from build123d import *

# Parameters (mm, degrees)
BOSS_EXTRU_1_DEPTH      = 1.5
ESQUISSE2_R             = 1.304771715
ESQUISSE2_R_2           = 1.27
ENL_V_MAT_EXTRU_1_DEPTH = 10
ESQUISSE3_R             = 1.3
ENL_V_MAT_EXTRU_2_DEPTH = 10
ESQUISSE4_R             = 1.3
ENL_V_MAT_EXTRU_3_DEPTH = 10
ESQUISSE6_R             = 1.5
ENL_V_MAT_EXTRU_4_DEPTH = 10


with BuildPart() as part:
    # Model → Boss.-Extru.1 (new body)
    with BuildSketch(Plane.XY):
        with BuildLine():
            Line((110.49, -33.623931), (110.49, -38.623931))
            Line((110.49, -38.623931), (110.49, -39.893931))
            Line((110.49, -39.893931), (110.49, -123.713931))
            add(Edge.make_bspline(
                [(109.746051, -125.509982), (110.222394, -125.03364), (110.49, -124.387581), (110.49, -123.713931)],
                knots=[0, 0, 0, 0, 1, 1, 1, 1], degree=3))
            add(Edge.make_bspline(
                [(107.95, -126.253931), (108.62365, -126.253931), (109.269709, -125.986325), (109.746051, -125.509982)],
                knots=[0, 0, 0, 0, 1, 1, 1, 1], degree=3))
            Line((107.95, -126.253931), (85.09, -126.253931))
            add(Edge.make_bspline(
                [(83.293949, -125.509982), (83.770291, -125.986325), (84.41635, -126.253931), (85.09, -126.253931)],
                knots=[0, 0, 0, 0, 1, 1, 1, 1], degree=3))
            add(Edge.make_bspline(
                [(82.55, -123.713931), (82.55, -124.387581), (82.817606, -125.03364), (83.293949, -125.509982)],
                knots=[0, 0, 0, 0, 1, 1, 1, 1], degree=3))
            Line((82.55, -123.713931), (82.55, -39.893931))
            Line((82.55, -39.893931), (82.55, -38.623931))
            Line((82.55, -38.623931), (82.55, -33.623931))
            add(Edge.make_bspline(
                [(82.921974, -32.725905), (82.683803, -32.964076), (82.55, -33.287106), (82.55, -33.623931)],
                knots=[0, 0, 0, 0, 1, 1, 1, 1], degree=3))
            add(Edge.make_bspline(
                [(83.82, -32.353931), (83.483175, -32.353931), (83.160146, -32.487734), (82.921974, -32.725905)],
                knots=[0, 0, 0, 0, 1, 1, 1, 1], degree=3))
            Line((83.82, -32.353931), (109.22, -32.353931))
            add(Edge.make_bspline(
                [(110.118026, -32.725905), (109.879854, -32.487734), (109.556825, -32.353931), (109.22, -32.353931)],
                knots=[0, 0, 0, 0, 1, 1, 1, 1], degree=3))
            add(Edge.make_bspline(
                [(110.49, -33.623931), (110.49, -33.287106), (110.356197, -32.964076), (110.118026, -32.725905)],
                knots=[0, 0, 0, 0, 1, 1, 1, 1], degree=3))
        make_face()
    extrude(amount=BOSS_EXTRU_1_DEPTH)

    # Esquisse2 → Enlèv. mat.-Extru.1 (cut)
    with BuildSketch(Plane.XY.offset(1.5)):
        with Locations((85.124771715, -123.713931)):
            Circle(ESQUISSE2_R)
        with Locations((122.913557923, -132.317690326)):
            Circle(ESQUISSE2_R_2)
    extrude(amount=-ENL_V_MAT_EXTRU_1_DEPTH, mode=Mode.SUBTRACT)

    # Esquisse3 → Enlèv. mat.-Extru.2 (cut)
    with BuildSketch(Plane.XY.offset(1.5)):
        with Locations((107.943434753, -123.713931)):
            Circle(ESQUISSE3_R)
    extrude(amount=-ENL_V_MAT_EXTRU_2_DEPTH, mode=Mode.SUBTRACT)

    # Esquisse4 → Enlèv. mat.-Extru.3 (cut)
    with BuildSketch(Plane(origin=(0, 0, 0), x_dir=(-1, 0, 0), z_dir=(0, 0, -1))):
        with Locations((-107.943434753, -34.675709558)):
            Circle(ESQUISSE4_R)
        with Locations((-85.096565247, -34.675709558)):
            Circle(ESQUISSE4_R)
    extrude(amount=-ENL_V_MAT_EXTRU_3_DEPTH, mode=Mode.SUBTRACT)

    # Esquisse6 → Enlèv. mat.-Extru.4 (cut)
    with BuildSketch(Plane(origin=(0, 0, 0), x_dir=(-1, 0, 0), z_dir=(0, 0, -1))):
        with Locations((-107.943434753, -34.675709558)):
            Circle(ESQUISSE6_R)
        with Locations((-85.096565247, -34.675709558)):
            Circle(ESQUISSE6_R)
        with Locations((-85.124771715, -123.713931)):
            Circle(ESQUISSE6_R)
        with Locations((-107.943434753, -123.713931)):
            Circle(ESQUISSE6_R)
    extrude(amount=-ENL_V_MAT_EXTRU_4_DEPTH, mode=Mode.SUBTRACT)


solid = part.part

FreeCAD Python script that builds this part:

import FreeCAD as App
import Part
import Sketcher
from FreeCAD import Vector

doc = App.newDocument("Part")
body = doc.addObject("PartDesign::Body", "Body")

# Sketch on XY plane
sketch1 = body.newObject("Sketcher::SketchObject", "Sketch")
sketch1.AttachmentSupport = (doc.getObject("XY_Plane"), [""])
sketch1.MapMode = "FlatFace"
sketch1.addGeometry(Part.LineSegment(Vector(110.49, -123.713931, 0), Vector(110.49, -33.623931, 0)), False)
sketch1.addGeometry(Part.BSplineCurve([Vector(110.49, -33.623931, 0), Vector(110.49, -33.287106, 0), Vector(110.356197, -32.964076, 0), Vector(110.118026, -32.725905, 0)], [4, 4], [0, 1], False, 3, [1, 1, 1, 1], False), False)
sketch1.addGeometry(Part.BSplineCurve([Vector(110.118026, -32.725905, 0), Vector(109.879854, -32.487734, 0), Vector(109.556825, -32.353931, 0), Vector(109.22, -32.353931, 0)], [4, 4], [0, 1], False, 3, [1, 1, 1, 1], False), False)
sketch1.addGeometry(Part.LineSegment(Vector(109.22, -32.353931, 0), Vector(83.82, -32.353931, 0)), False)
sketch1.addGeometry(Part.BSplineCurve([Vector(83.82, -32.353931, 0), Vector(83.483175, -32.353931, 0), Vector(83.160146, -32.487734, 0), Vector(82.921974, -32.725905, 0)], [4, 4], [0, 1], False, 3, [1, 1, 1, 1], False), False)
sketch1.addGeometry(Part.BSplineCurve([Vector(82.921974, -32.725905, 0), Vector(82.683803, -32.964076, 0), Vector(82.55, -33.287106, 0), Vector(82.55, -33.623931, 0)], [4, 4], [0, 1], False, 3, [1, 1, 1, 1], False), False)
sketch1.addGeometry(Part.LineSegment(Vector(82.55, -33.623931, 0), Vector(82.55, -123.713931, 0)), False)
sketch1.addGeometry(Part.BSplineCurve([Vector(82.55, -123.713931, 0), Vector(82.55, -124.387581, 0), Vector(82.817606, -125.03364, 0), Vector(83.293949, -125.509982, 0)], [4, 4], [0, 1], False, 3, [1, 1, 1, 1], False), False)
sketch1.addGeometry(Part.BSplineCurve([Vector(83.293949, -125.509982, 0), Vector(83.770291, -125.986325, 0), Vector(84.41635, -126.253931, 0), Vector(85.09, -126.253931, 0)], [4, 4], [0, 1], False, 3, [1, 1, 1, 1], False), False)
sketch1.addGeometry(Part.LineSegment(Vector(85.09, -126.253931, 0), Vector(107.95, -126.253931, 0)), False)
sketch1.addGeometry(Part.BSplineCurve([Vector(107.95, -126.253931, 0), Vector(108.62365, -126.253931, 0), Vector(109.269709, -125.986325, 0), Vector(109.746051, -125.509982, 0)], [4, 4], [0, 1], False, 3, [1, 1, 1, 1], False), False)
sketch1.addGeometry(Part.BSplineCurve([Vector(109.746051, -125.509982, 0), Vector(110.222394, -125.03364, 0), Vector(110.49, -124.387581, 0), Vector(110.49, -123.713931, 0)], [4, 4], [0, 1], False, 3, [1, 1, 1, 1], False), False)
sketch1.addConstraint(Sketcher.Constraint("Block", 1))
sketch1.addConstraint(Sketcher.Constraint("Block", 2))
sketch1.addConstraint(Sketcher.Constraint("Block", 4))
sketch1.addConstraint(Sketcher.Constraint("Block", 5))
sketch1.addConstraint(Sketcher.Constraint("Block", 7))
sketch1.addConstraint(Sketcher.Constraint("Block", 8))
sketch1.addConstraint(Sketcher.Constraint("Block", 10))
sketch1.addConstraint(Sketcher.Constraint("Block", 11))
sketch1.addConstraint(Sketcher.Constraint("Coincident", 0, 2, 1, 1))
sketch1.addConstraint(Sketcher.Constraint("Coincident", 2, 2, 3, 1))
sketch1.addConstraint(Sketcher.Constraint("Coincident", 3, 2, 4, 1))
sketch1.addConstraint(Sketcher.Constraint("Coincident", 5, 2, 6, 1))
sketch1.addConstraint(Sketcher.Constraint("Coincident", 6, 2, 7, 1))
sketch1.addConstraint(Sketcher.Constraint("Coincident", 8, 2, 9, 1))
sketch1.addConstraint(Sketcher.Constraint("Coincident", 9, 2, 10, 1))
sketch1.addConstraint(Sketcher.Constraint("Coincident", 11, 2, 0, 1))
pad1 = body.newObject("PartDesign::Pad", "Pad")
pad1.Profile = sketch1
pad1.Length = 1.5

# Sketch on XY plane
sketch2 = body.newObject("Sketcher::SketchObject", "Sketch001")
sketch2.AttachmentSupport = (doc.getObject("XY_Plane"), [""])
sketch2.MapMode = "FlatFace"
sketch2.AttachmentOffset = App.Placement(Vector(0, 0, 1.5), App.Rotation())
sketch2.addGeometry(Part.Circle(Vector(85.1, -123.7, 0), Vector(0, 0, 1), 1.3), False)
sketch2.addGeometry(Part.Circle(Vector(122.9, -132.3, 0), Vector(0, 0, 1), 1.3), False)
sketch2.addConstraint(Sketcher.Constraint("Diameter", 1, 2.54))
sketch2.addConstraint(Sketcher.Constraint("Diameter", 0, 2.609543))
sketch2.addConstraint(Sketcher.Constraint("DistanceX", -1, 1, 0, 3, 85.124772))
sketch2.addConstraint(Sketcher.Constraint("DistanceY", 0, 3, -1, 1, 123.713931))
sketch2.addConstraint(Sketcher.Constraint("DistanceY", 1, 3, -1, 1, 132.31769))
sketch2.addConstraint(Sketcher.Constraint("DistanceX", -1, 1, 1, 3, 122.913558))
pocket1 = body.newObject("PartDesign::Pocket", "Pocket")
pocket1.Profile = sketch2
pocket1.Length = 10

# Sketch on XY plane
sketch3 = body.newObject("Sketcher::SketchObject", "Sketch002")
sketch3.AttachmentSupport = (doc.getObject("XY_Plane"), [""])
sketch3.MapMode = "FlatFace"
sketch3.AttachmentOffset = App.Placement(Vector(0, 0, 1.5), App.Rotation())
sketch3.addGeometry(Part.Circle(Vector(107.9, -123.7, 0), Vector(0, 0, 1), 1.3), False)
sketch3.addConstraint(Sketcher.Constraint("Diameter", 0, 2.6))
sketch3.addConstraint(Sketcher.Constraint("DistanceY", 0, 3, -1, 1, 123.713931))
sketch3.addConstraint(Sketcher.Constraint("DistanceX", -1, 1, 0, 3, 107.943435))
pocket2 = body.newObject("PartDesign::Pocket", "Pocket001")
pocket2.Profile = sketch3
pocket2.Length = 10

# Sketch on XY plane
sketch4 = body.newObject("Sketcher::SketchObject", "Sketch003")
sketch4.AttachmentSupport = (doc.getObject("XY_Plane"), [""])
sketch4.MapMode = "FlatFace"
sketch4.addGeometry(Part.Circle(Vector(107.9, -34.7, 0), Vector(0, 0, 1), 1.3), False)
sketch4.addGeometry(Part.Circle(Vector(85.1, -34.7, 0), Vector(0, 0, 1), 1.3), False)
sketch4.addConstraint(Sketcher.Constraint("Equal", 0, 1))
sketch4.addConstraint(Sketcher.Constraint("Horizontal", 0, 3, 1, 3))
sketch4.addConstraint(Sketcher.Constraint("Diameter", 0, 2.6))
sketch4.addConstraint(Sketcher.Constraint("DistanceY", 0, 3, -1, 1, 34.67571))
sketch4.addConstraint(Sketcher.Constraint("DistanceX", 1, 3, 0, 3, 22.84687))
sketch4.addConstraint(Sketcher.Constraint("DistanceX", -1, 1, 0, 3, 107.943435))
pocket3 = body.newObject("PartDesign::Pocket", "Pocket002")
pocket3.Profile = sketch4
pocket3.Length = 10
pocket3.Reversed = True

# Sketch on XY plane
sketch5 = body.newObject("Sketcher::SketchObject", "Sketch004")
sketch5.AttachmentSupport = (doc.getObject("XY_Plane"), [""])
sketch5.MapMode = "FlatFace"
sketch5.addGeometry(Part.Circle(Vector(107.9, -34.7, 0), Vector(0, 0, 1), 1.5), False)
sketch5.addGeometry(Part.Circle(Vector(85.1, -34.7, 0), Vector(0, 0, 1), 1.5), False)
sketch5.addGeometry(Part.Circle(Vector(85.1, -123.7, 0), Vector(0, 0, 1), 1.5), False)
sketch5.addGeometry(Part.Circle(Vector(107.9, -123.7, 0), Vector(0, 0, 1), 1.5), False)
sketch5.addConstraint(Sketcher.Constraint("Equal", 0, 1))
sketch5.addConstraint(Sketcher.Constraint("Equal", 1, 2))
sketch5.addConstraint(Sketcher.Constraint("Equal", 2, 3))
sketch5.addConstraint(Sketcher.Constraint("Horizontal", 0, 3, 1, 3))
sketch5.addConstraint(Sketcher.Constraint("Horizontal", 2, 3, 3, 3))
sketch5.addConstraint(Sketcher.Constraint("Vertical", 0, 3, 3, 3))
sketch5.addConstraint(Sketcher.Constraint("Diameter", 0, 3.0))
sketch5.addConstraint(Sketcher.Constraint("DistanceY", 0, 3, -1, 1, 34.67571))
sketch5.addConstraint(Sketcher.Constraint("DistanceX", -1, 1, 2, 3, 85.124772))
sketch5.addConstraint(Sketcher.Constraint("DistanceY", 2, 3, -1, 1, 123.713931))
sketch5.addConstraint(Sketcher.Constraint("DistanceX", 1, 3, 0, 3, 22.84687))
sketch5.addConstraint(Sketcher.Constraint("DistanceX", -1, 1, 0, 3, 107.943435))
pocket4 = body.newObject("PartDesign::Pocket", "Pocket003")
pocket4.Profile = sketch5
pocket4.Length = 10
pocket4.Reversed = True

doc.recompute()
